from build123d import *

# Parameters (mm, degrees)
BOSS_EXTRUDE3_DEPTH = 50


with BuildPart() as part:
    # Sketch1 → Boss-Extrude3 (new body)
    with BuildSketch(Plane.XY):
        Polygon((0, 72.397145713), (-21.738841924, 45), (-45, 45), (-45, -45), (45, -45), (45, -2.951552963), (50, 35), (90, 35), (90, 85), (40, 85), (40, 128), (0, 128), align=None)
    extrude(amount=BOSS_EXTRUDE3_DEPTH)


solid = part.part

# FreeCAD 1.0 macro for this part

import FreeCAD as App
import Part
import Sketcher
from FreeCAD import Vector
Q = App.Units.Quantity


def add_polygon(sketch, points):
    """Adds a closed chain of lines whose ends are joined by coincident constraints."""
    first, n = sketch.GeometryCount, len(points)
    for a, b in zip(points, points[1:] + points[:1]):
        sketch.addGeometry(Part.LineSegment(App.Vector(*a, 0), App.Vector(*b, 0)), False)
    for i in range(n):
        sketch.addConstraint(Sketcher.Constraint("Coincident", first + i, 2, first + (i + 1) % n, 1))

doc = App.newDocument("Part")
params = doc.addObject("Spreadsheet::Sheet", "Params")
for row, (alias, value) in enumerate([
    ("sketch1_width", "90 mm"),
    ("sketch1_width2", "40 mm"),
    ("sketch1_width3", "50 mm"),
    ("sketch1_height", "43 mm"),
    ("pad1_length", "50 mm"),
], start=1):
    params.set(f"A{row}", alias)
    params.set(f"B{row}", "=" + value)
    params.setAlias(f"B{row}", alias)

body = doc.addObject("PartDesign::Body", "Body")

# Sketch on XY plane
sketch1 = body.newObject("Sketcher::SketchObject", "Sketch")
sketch1.AttachmentSupport = (doc.getObject("XY_Plane"), [""])
sketch1.MapMode = "FlatFace"
add_polygon(sketch1, [(0, 72.397146), (-21.738842, 45), (-45, 45), (-45, -45), (45, -45), (45, -2.951553), (50, 35), (90, 35), (90, 85), (40, 85), (40, 128), (0, 128)])  # lines 0-11
sketch1.addConstraint([
    Sketcher.Constraint("Horizontal", 1),
    Sketcher.Constraint("Vertical", 2),
    Sketcher.Constraint("Horizontal", 3),
    Sketcher.Constraint("Vertical", 4),
    Sketcher.Constraint("Horizontal", 6),
    Sketcher.Constraint("Vertical", 7),
    Sketcher.Constraint("Horizontal", 8),
    Sketcher.Constraint("Vertical", 9),
    Sketcher.Constraint("Horizontal", 10),
    Sketcher.Constraint("Vertical", 11),
    Sketcher.Constraint("Symmetric", 1, 2, 3, 2, -1, 1),
    Sketcher.Constraint("PointOnObject", 10, 2, -2),
    Sketcher.Constraint("Equal", 6, 10),
    Sketcher.Constraint("Equal", 3, 2),
    Sketcher.Constraint("Equal", 8, 7),
    Sketcher.Constraint("DistanceX", 3, 1, 3, 2, Q("90 mm")),
    Sketcher.Constraint("DistanceX", 6, 1, 6, 2, Q("40 mm")),
    Sketcher.Constraint("DistanceX", 8, 2, 8, 1, Q("50 mm")),
    Sketcher.Constraint("DistanceY", 9, 1, 9, 2, Q("43 mm")),
    Sketcher.Constraint("DistanceY", -1, 1, 5, 2, Q("35 mm")),
    Sketcher.Constraint("DistanceX", 1, 2, 1, 1, Q("23.261158 mm")),
    Sketcher.Constraint("DistanceY", 4, 1, 4, 2, Q("42.048447 mm")),
    Sketcher.Constraint("DistanceY", 11, 2, 11, 1, Q("55.602854 mm")),
])
sketch1.setExpression("Constraints[27]", "Params.sketch1_width")
sketch1.setExpression("Constraints[28]", "Params.sketch1_width2")
sketch1.setExpression("Constraints[29]", "Params.sketch1_width3")
sketch1.setExpression("Constraints[30]", "Params.sketch1_height")
pad1 = body.newObject("PartDesign::Pad", "Pad")
pad1.Profile = sketch1
pad1.setExpression("Length", "Params.pad1_length")

doc.recompute()
